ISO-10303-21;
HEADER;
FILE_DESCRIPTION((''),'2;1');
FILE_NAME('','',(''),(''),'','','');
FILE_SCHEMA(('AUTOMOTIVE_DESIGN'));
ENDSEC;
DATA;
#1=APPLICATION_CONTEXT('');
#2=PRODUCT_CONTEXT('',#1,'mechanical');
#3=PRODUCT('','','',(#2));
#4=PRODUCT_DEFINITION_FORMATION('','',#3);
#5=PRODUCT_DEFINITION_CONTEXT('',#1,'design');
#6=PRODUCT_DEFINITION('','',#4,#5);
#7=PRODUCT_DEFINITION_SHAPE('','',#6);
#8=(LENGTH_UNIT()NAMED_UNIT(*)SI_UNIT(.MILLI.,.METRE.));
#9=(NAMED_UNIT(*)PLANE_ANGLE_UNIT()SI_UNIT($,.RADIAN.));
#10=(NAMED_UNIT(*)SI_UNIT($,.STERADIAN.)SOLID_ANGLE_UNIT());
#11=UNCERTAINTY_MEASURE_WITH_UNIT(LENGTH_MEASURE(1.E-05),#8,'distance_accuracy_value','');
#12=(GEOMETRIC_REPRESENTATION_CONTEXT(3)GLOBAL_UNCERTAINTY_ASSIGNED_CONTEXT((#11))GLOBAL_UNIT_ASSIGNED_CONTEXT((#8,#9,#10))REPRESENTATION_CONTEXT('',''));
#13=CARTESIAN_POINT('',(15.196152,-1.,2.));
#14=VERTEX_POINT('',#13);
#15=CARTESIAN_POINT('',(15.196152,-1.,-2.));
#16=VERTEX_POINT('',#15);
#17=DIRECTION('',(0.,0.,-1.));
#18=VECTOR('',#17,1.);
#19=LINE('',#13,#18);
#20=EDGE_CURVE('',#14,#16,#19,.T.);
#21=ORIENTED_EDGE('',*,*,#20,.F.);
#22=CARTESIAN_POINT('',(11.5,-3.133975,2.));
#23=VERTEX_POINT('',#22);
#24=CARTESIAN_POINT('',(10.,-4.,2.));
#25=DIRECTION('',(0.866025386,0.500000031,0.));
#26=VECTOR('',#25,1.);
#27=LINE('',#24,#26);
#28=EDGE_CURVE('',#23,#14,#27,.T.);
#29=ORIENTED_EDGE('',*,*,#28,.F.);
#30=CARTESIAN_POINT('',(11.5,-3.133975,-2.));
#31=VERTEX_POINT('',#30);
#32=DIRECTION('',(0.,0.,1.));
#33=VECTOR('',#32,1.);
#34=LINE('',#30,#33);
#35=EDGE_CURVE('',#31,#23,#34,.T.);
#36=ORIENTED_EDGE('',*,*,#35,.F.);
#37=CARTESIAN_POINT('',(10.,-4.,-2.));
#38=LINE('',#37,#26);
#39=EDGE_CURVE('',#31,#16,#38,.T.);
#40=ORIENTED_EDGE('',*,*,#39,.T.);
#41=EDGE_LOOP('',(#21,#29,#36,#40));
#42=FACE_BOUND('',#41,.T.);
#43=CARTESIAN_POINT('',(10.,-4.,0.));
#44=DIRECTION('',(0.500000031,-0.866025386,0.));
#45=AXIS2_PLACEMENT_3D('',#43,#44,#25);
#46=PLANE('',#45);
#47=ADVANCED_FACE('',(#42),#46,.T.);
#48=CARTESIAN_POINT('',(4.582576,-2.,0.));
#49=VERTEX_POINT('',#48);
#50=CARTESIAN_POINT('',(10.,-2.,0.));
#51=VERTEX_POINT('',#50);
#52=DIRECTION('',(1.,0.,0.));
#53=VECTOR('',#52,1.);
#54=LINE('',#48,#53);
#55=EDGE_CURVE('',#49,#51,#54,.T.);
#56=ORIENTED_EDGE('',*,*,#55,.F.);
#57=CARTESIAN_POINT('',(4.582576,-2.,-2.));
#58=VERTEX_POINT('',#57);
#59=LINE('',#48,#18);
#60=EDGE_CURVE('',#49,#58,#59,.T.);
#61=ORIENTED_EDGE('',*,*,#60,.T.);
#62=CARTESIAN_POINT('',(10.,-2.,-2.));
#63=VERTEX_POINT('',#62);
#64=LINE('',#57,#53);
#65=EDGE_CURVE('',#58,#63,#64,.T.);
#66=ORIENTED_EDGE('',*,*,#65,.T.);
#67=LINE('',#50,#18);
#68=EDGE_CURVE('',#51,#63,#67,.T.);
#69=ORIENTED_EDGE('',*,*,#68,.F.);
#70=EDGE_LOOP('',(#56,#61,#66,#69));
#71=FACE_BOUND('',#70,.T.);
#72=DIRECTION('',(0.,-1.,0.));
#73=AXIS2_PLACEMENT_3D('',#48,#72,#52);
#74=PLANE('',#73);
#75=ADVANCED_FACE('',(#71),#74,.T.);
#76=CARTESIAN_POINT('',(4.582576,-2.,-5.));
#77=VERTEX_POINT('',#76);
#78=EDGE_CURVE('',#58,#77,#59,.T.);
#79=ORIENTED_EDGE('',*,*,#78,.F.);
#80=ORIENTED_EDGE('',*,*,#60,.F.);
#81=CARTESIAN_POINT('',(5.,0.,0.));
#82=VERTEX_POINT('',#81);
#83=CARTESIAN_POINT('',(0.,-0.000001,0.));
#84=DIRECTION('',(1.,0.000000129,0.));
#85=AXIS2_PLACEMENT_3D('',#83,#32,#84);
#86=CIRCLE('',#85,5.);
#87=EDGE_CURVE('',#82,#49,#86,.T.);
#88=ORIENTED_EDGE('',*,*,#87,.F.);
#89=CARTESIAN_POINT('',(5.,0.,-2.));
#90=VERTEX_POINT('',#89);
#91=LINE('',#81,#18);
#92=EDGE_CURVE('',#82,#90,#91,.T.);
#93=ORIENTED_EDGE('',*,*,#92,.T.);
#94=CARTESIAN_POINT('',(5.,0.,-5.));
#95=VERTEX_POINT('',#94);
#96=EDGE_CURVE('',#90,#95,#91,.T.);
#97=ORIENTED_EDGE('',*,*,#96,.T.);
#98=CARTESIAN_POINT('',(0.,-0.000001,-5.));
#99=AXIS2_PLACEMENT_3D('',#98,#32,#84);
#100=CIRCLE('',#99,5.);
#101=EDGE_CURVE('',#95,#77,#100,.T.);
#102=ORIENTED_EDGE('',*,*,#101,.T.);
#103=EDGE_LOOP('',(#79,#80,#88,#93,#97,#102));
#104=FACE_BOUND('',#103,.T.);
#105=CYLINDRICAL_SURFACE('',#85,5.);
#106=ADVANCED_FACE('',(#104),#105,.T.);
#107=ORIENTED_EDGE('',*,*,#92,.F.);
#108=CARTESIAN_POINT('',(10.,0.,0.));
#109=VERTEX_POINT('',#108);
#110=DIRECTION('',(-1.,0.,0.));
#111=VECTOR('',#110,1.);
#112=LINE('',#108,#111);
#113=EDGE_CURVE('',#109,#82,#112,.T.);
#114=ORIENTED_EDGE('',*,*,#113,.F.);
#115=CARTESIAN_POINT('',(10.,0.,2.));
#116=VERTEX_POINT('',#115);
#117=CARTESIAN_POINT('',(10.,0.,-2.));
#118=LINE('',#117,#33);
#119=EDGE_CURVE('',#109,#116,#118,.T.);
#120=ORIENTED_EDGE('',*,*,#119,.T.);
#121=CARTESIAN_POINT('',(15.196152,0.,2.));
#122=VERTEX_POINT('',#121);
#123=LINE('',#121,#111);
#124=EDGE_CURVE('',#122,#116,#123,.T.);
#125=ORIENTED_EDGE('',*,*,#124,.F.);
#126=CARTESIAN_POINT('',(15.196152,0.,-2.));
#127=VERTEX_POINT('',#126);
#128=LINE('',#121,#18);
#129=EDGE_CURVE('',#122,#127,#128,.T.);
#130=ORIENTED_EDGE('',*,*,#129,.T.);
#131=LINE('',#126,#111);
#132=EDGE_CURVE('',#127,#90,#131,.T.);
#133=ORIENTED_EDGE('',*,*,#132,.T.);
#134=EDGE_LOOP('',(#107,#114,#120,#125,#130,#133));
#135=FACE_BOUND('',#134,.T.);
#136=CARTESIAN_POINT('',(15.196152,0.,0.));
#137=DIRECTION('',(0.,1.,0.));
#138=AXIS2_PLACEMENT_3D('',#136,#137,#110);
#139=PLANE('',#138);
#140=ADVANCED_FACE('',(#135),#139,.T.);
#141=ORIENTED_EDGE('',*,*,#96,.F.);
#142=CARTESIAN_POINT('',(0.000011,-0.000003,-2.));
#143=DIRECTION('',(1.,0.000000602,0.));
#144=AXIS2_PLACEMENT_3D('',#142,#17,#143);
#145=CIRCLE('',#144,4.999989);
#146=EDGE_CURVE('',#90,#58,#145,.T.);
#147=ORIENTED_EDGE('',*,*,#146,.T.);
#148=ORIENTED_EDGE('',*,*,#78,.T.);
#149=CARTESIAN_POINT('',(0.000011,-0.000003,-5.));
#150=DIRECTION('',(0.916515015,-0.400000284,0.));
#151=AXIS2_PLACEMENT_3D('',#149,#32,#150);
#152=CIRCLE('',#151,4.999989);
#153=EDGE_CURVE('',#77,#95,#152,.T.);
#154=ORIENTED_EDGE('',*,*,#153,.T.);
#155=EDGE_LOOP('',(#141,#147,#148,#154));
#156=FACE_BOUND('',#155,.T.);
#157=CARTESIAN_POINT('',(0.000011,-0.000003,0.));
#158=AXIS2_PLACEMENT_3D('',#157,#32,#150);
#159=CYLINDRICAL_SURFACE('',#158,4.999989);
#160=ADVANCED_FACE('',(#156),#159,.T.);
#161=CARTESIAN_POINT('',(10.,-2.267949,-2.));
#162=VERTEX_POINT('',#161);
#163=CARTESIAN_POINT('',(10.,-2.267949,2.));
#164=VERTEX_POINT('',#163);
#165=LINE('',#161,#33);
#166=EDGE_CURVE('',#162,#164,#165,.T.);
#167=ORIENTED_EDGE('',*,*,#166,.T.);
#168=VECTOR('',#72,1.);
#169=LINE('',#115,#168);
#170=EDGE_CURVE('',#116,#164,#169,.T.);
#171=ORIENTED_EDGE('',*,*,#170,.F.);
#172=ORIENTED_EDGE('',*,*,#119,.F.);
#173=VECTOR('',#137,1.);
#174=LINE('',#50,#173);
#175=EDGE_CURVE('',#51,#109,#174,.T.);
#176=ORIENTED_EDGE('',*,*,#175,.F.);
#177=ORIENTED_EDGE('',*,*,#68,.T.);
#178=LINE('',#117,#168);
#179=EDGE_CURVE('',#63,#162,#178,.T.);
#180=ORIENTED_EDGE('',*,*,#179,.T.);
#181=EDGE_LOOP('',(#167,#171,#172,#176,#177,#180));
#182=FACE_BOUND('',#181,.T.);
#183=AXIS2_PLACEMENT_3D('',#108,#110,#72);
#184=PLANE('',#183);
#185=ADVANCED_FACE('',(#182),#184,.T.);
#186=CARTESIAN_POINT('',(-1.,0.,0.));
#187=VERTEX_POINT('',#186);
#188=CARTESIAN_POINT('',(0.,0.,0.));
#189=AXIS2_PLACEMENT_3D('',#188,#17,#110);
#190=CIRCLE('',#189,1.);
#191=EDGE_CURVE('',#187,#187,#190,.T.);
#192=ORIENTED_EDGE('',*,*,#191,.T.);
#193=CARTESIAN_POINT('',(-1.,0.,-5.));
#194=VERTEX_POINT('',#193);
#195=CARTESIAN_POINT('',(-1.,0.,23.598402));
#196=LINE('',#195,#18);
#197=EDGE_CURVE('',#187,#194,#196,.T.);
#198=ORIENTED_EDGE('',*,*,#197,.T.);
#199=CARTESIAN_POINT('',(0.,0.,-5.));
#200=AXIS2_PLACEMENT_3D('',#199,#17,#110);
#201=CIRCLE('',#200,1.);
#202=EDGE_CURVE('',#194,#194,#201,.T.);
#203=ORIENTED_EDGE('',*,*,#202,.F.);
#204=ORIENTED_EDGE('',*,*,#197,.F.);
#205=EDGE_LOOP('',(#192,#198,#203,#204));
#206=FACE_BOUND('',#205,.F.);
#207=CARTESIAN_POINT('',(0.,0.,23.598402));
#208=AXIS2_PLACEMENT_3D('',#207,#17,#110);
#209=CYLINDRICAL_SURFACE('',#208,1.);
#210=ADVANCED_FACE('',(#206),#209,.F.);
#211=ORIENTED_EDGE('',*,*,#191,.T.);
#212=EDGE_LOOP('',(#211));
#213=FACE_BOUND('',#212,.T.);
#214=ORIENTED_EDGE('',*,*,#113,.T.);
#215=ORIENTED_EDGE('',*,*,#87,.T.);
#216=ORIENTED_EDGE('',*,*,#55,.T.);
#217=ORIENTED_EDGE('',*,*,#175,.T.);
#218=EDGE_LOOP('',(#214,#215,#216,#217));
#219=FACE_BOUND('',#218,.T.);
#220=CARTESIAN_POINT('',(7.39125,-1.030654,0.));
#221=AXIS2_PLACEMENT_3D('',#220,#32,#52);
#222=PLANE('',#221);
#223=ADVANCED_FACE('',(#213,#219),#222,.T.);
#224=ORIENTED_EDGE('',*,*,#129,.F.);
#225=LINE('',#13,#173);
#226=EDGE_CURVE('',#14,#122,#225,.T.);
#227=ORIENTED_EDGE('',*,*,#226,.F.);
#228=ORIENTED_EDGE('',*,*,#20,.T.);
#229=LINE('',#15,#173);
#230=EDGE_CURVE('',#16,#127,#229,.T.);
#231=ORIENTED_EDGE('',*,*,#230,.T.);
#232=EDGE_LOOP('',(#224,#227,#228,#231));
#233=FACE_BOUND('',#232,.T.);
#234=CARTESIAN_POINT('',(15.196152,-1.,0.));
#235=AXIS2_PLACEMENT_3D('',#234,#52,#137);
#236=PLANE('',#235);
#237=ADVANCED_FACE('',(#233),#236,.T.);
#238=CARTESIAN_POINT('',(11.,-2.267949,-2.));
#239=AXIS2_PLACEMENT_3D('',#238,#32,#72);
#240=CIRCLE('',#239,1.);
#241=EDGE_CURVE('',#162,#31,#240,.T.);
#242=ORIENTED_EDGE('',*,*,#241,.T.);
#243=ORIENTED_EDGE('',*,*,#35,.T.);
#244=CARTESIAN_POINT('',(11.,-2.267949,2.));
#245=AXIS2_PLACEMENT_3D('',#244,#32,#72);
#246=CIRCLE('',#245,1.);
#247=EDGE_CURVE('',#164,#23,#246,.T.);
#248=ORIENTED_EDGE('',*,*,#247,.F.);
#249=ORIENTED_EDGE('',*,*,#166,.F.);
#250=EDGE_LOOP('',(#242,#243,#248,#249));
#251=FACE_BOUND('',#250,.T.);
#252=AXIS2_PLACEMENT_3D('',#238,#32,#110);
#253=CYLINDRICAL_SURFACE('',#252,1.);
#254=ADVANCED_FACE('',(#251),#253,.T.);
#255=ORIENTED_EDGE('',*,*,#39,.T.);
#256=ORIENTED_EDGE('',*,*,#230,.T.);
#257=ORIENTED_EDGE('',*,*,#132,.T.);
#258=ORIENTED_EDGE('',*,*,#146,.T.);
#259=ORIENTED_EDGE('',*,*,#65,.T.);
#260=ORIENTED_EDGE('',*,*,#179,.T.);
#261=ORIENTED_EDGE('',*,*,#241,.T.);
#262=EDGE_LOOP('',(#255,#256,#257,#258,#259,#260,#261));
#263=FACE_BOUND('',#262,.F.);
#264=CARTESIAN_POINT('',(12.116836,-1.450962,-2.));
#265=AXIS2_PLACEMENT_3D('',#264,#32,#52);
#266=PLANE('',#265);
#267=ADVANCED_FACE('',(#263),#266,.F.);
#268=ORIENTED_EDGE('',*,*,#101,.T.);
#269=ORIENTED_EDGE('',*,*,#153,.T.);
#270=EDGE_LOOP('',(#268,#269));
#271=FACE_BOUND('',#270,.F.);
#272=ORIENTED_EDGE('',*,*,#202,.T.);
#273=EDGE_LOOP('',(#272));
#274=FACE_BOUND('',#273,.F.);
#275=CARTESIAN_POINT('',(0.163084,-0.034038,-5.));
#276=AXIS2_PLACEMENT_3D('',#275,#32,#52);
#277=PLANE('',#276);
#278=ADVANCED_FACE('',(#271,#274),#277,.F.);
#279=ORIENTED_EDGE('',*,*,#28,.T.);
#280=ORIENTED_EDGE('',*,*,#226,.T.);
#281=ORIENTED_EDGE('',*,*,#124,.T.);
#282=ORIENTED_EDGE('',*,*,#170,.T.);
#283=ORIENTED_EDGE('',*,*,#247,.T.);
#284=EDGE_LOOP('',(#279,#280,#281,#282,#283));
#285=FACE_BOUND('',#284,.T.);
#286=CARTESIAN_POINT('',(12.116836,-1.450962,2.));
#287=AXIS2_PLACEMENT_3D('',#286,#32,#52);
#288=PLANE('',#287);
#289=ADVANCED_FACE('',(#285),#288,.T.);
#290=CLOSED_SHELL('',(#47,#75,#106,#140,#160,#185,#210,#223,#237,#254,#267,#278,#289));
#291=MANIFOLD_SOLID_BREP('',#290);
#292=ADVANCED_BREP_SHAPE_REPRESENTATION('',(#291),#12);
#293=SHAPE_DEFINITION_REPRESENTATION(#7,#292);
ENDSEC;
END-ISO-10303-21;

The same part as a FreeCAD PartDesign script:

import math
import FreeCAD as App
import Part
import Sketcher

V = App.Vector
Q = App.Units.Quantity


def edges_at(feature, points):
    """Names of the edges that pass closest to the given points."""
    edges = feature.Shape.Edges
    near = lambda p: min(range(len(edges)), key=lambda i: edges[i].distToShape(Part.Vertex(*p))[0])
    return sorted({f"Edge{near(p) + 1}" for p in points})

doc = App.newDocument("Part")
body = doc.addObject("PartDesign::Body", "Body")

# Sketch on XY plane
sketch1 = body.newObject("Sketcher::SketchObject", "Sketch")
sketch1.AttachmentSupport = (doc.getObject("XY_Plane"), [""])
sketch1.MapMode = "FlatFace"
sketch1.addGeometry([
    Part.ArcOfCircle(Part.Circle(V(0, 0, 0), V(0, 0, 1), 5), math.radians(-24), math.radians(0)),
    Part.ArcOfCircle(Part.Circle(V(0, 0, 0), V(0, 0, 1), 5), math.radians(0), math.radians(336)),
], False)
sketch1.addConstraint([
    Sketcher.Constraint("Tangent", 0, 1, 1, 2),
    Sketcher.Constraint("Coincident", 1, 1, 0, 2),
    Sketcher.Constraint("Coincident", 1, 3, -1, 1),
    Sketcher.Constraint("PointOnObject", 1, 1, -1),
    Sketcher.Constraint("Radius", 1, 5.0),
    Sketcher.Constraint("DistanceY", 0, 1, -1, 1, 2.0),
])
pad1 = body.newObject("PartDesign::Pad", "Pad")
pad1.Profile = sketch1
pad1.Length = 5
pad1.Reversed = True

# Sketch on XY plane
sketch2 = body.newObject("Sketcher::SketchObject", "Sketch001")
sketch2.AttachmentSupport = (doc.getObject("XY_Plane"), [""])
sketch2.MapMode = "FlatFace"
sketch2.addGeometry([
    Part.LineSegment(V(10, 0, 0), V(5, 0, 0)),
    Part.ArcOfCircle(Part.Circle(V(0, 0, 0), V(0, 0, 1), 5), math.radians(-24), math.radians(0)),
    Part.LineSegment(V(4.6, -2, 0), V(10, -2, 0)),
    Part.LineSegment(V(10, -2, 0), V(10, 0, 0)),
], False)
sketch2.addConstraint([
    Sketcher.Constraint("Coincident", 0, 2, 1, 2),
    Sketcher.Constraint("Coincident", 1, 1, 2, 1),
    Sketcher.Constraint("Coincident", 2, 2, 3, 1),
    Sketcher.Constraint("Coincident", 3, 2, 0, 1),
    Sketcher.Constraint("Horizontal", 0),
    Sketcher.Constraint("Horizontal", 2),
    Sketcher.Constraint("Vertical", 3),
    Sketcher.Constraint("PointOnObject", 0, 2, -1),
    Sketcher.Constraint("DistanceX", 0, 2, 0, 1, 5.0),
    Sketcher.Constraint("DistanceY", 3, 1, 3, 2, 2.0),
    Sketcher.Constraint("DistanceX", -1, 1, 0, 2, 5.0),
    Sketcher.Constraint("Radius", 1, 4.999989),
    Sketcher.Constraint("DistanceX", 2, 1, 2, 2, 5.417424),
])
pad2 = body.newObject("PartDesign::Pad", "Pad001")
pad2.Profile = sketch2
pad2.Length = 2
pad2.Reversed = True

# Sketch on XY plane
sketch3 = body.newObject("Sketcher::SketchObject", "Sketch002")
sketch3.AttachmentSupport = (doc.getObject("XY_Plane"), [""])
sketch3.MapMode = "FlatFace"
sketch3.addGeometry([
    Part.LineSegment(V(15.2, 0, 0), V(10, 0, 0)),
    Part.LineSegment(V(10, 0, 0), V(10, -4, 0)),
    Part.LineSegment(V(10, -4, 0), V(15.2, -1, 0)),
    Part.LineSegment(V(15.2, -1, 0), V(15.2, 0, 0)),
], False)
sketch3.addConstraint([
    Sketcher.Constraint("Coincident", 0, 2, 1, 1),
    Sketcher.Constraint("Coincident", 1, 2, 2, 1),
    Sketcher.Constraint("Coincident", 2, 2, 3, 1),
    Sketcher.Constraint("Coincident", 3, 2, 0, 1),
    Sketcher.Constraint("Horizontal", 0),
    Sketcher.Constraint("Vertical", 1),
    Sketcher.Constraint("Vertical", 3),
    Sketcher.Constraint("PointOnObject", 0, 2, -1),
    Sketcher.Constraint("DistanceY", 1, 2, 1, 1, 4.0),
    Sketcher.Constraint("DistanceY", 3, 1, 3, 2, 1.0),
    Sketcher.Constraint("Angle", 2, Q("30.000002 deg")),
    Sketcher.Constraint("DistanceX", -1, 1, 0, 2, 10.0),
])
pad3 = body.newObject("PartDesign::Pad", "Pad002")
pad3.Profile = sketch3
pad3.Length = 4
pad3.Midplane = True

# Sketch on XY plane
sketch4 = body.newObject("Sketcher::SketchObject", "Sketch003")
sketch4.AttachmentSupport = (doc.getObject("XY_Plane"), [""])
sketch4.MapMode = "FlatFace"
sketch4.addGeometry(Part.Circle(V(0, 0, 0), V(0, 0, 1), 1), False)
sketch4.addConstraint([
    Sketcher.Constraint("Coincident", 0, 3, -1, 1),
    Sketcher.Constraint("Diameter", 0, 2.0),
])
doc.recompute()
hole = body.newObject("PartDesign::Hole", "Hole")
hole.Profile = sketch4
hole.ThreadType = "None"
hole.Diameter = 2
hole.DepthType = "ThroughAll"
doc.recompute()

fillet = body.newObject("PartDesign::Fillet", "Fillet")
fillet.Base = (hole, edges_at(hole, [(10, -4, 0)]))
fillet.Radius = 1

doc.recompute()
